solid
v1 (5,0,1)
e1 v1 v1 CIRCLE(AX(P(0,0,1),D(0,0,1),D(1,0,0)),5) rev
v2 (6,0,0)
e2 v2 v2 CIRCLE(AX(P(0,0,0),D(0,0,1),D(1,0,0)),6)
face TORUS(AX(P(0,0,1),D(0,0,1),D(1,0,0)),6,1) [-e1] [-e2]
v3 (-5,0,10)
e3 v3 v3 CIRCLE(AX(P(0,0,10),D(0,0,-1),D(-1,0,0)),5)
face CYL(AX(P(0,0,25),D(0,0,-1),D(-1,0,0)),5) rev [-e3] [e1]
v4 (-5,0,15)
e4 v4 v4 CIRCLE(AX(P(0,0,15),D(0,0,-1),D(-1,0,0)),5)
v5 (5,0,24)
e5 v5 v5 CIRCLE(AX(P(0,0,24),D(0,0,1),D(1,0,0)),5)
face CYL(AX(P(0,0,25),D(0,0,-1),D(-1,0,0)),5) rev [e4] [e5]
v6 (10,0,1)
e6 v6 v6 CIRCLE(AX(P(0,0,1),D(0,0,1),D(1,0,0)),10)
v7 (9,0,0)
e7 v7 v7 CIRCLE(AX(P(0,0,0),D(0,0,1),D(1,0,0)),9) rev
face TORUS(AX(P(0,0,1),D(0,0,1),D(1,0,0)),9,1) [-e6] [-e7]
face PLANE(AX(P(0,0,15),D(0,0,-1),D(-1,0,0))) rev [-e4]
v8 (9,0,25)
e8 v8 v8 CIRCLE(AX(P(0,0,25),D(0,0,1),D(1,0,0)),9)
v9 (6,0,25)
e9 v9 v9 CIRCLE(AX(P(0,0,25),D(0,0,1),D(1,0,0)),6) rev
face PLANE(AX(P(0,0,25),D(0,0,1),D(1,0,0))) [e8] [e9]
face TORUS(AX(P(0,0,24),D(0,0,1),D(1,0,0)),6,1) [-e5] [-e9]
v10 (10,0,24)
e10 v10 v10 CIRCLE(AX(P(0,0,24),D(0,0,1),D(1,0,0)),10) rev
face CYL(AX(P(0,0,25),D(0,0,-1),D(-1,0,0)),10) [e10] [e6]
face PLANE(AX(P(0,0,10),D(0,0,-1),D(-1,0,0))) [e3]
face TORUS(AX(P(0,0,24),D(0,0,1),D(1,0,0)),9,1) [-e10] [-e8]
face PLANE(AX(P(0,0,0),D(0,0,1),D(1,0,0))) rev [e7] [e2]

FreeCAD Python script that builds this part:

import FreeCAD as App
import Part
import Sketcher
from FreeCAD import Vector
Q = App.Units.Quantity


def edges_at(feature, points):
    """Names of the edges that pass closest to the given points."""
    edges = feature.Shape.Edges
    near = lambda p: min(range(len(edges)), key=lambda i: edges[i].distToShape(Part.Vertex(*p))[0])
    return sorted({f"Edge{near(p) + 1}" for p in points})

doc = App.newDocument("Part")
params = doc.addObject("Spreadsheet::Sheet", "Params")
for row, (alias, value) in enumerate([
    ("sketch1_diameter", "20 mm"),
    ("sketch1_diameter2", "10 mm"),
    ("pad1_length", "25 mm"),
    ("fillet_radius", "1 mm"),
    ("pad2_length", "5 mm"),
], start=1):
    params.set(f"A{row}", alias)
    params.set(f"B{row}", "=" + value)
    params.setAlias(f"B{row}", alias)

body = doc.addObject("PartDesign::Body", "Body")

# Sketch on XY plane
sketch1 = body.newObject("Sketcher::SketchObject", "Sketch")
sketch1.AttachmentSupport = (doc.getObject("XY_Plane"), [""])
sketch1.MapMode = "FlatFace"
sketch1.addGeometry([
    Part.Circle(Vector(0, 0, 0), Vector(0, 0, 1), 10),
    Part.Circle(Vector(0, 0, 0), Vector(0, 0, 1), 5),
], False)
sketch1.addConstraint([
    Sketcher.Constraint("Coincident", 0, 3, -1, 1),
    Sketcher.Constraint("Coincident", 1, 3, -1, 1),
    Sketcher.Constraint("Diameter", 0, Q("20 mm")),
    Sketcher.Constraint("Diameter", 1, Q("10 mm")),
])
sketch1.setExpression("Constraints[2]", "Params.sketch1_diameter")
sketch1.setExpression("Constraints[3]", "Params.sketch1_diameter2")
pad1 = body.newObject("PartDesign::Pad", "Pad")
pad1.Profile = sketch1
pad1.setExpression("Length", "Params.pad1_length")
doc.recompute()

fillet = body.newObject("PartDesign::Fillet", "Fillet")
fillet.Base = (pad1, edges_at(pad1, [
    (-10, 0, 0),
    (-10, 0, 25),
    (-5, 0, 0),
    (-5, 0, 25),
]))
fillet.setExpression("Radius", "Params.fillet_radius")

# Sketch on XY plane
sketch2 = body.newObject("Sketcher::SketchObject", "Sketch001")
sketch2.AttachmentSupport = (doc.getObject("XY_Plane"), [""])
sketch2.MapMode = "FlatFace"
sketch2.AttachmentOffset = App.Placement(Vector(0, 0, 10), App.Rotation())
sketch2.addGeometry(Part.Circle(Vector(0, 0, 0), Vector(0, 0, 1), 7), False)
sketch2.addConstraint([
    Sketcher.Constraint("Coincident", 0, 3, -1, 1),
    Sketcher.Constraint("Diameter", 0, Q("13.938036 mm")),
])
pad2 = body.newObject("PartDesign::Pad", "Pad001")
pad2.Profile = sketch2
pad2.setExpression("Length", "Params.pad2_length")

doc.recompute()
